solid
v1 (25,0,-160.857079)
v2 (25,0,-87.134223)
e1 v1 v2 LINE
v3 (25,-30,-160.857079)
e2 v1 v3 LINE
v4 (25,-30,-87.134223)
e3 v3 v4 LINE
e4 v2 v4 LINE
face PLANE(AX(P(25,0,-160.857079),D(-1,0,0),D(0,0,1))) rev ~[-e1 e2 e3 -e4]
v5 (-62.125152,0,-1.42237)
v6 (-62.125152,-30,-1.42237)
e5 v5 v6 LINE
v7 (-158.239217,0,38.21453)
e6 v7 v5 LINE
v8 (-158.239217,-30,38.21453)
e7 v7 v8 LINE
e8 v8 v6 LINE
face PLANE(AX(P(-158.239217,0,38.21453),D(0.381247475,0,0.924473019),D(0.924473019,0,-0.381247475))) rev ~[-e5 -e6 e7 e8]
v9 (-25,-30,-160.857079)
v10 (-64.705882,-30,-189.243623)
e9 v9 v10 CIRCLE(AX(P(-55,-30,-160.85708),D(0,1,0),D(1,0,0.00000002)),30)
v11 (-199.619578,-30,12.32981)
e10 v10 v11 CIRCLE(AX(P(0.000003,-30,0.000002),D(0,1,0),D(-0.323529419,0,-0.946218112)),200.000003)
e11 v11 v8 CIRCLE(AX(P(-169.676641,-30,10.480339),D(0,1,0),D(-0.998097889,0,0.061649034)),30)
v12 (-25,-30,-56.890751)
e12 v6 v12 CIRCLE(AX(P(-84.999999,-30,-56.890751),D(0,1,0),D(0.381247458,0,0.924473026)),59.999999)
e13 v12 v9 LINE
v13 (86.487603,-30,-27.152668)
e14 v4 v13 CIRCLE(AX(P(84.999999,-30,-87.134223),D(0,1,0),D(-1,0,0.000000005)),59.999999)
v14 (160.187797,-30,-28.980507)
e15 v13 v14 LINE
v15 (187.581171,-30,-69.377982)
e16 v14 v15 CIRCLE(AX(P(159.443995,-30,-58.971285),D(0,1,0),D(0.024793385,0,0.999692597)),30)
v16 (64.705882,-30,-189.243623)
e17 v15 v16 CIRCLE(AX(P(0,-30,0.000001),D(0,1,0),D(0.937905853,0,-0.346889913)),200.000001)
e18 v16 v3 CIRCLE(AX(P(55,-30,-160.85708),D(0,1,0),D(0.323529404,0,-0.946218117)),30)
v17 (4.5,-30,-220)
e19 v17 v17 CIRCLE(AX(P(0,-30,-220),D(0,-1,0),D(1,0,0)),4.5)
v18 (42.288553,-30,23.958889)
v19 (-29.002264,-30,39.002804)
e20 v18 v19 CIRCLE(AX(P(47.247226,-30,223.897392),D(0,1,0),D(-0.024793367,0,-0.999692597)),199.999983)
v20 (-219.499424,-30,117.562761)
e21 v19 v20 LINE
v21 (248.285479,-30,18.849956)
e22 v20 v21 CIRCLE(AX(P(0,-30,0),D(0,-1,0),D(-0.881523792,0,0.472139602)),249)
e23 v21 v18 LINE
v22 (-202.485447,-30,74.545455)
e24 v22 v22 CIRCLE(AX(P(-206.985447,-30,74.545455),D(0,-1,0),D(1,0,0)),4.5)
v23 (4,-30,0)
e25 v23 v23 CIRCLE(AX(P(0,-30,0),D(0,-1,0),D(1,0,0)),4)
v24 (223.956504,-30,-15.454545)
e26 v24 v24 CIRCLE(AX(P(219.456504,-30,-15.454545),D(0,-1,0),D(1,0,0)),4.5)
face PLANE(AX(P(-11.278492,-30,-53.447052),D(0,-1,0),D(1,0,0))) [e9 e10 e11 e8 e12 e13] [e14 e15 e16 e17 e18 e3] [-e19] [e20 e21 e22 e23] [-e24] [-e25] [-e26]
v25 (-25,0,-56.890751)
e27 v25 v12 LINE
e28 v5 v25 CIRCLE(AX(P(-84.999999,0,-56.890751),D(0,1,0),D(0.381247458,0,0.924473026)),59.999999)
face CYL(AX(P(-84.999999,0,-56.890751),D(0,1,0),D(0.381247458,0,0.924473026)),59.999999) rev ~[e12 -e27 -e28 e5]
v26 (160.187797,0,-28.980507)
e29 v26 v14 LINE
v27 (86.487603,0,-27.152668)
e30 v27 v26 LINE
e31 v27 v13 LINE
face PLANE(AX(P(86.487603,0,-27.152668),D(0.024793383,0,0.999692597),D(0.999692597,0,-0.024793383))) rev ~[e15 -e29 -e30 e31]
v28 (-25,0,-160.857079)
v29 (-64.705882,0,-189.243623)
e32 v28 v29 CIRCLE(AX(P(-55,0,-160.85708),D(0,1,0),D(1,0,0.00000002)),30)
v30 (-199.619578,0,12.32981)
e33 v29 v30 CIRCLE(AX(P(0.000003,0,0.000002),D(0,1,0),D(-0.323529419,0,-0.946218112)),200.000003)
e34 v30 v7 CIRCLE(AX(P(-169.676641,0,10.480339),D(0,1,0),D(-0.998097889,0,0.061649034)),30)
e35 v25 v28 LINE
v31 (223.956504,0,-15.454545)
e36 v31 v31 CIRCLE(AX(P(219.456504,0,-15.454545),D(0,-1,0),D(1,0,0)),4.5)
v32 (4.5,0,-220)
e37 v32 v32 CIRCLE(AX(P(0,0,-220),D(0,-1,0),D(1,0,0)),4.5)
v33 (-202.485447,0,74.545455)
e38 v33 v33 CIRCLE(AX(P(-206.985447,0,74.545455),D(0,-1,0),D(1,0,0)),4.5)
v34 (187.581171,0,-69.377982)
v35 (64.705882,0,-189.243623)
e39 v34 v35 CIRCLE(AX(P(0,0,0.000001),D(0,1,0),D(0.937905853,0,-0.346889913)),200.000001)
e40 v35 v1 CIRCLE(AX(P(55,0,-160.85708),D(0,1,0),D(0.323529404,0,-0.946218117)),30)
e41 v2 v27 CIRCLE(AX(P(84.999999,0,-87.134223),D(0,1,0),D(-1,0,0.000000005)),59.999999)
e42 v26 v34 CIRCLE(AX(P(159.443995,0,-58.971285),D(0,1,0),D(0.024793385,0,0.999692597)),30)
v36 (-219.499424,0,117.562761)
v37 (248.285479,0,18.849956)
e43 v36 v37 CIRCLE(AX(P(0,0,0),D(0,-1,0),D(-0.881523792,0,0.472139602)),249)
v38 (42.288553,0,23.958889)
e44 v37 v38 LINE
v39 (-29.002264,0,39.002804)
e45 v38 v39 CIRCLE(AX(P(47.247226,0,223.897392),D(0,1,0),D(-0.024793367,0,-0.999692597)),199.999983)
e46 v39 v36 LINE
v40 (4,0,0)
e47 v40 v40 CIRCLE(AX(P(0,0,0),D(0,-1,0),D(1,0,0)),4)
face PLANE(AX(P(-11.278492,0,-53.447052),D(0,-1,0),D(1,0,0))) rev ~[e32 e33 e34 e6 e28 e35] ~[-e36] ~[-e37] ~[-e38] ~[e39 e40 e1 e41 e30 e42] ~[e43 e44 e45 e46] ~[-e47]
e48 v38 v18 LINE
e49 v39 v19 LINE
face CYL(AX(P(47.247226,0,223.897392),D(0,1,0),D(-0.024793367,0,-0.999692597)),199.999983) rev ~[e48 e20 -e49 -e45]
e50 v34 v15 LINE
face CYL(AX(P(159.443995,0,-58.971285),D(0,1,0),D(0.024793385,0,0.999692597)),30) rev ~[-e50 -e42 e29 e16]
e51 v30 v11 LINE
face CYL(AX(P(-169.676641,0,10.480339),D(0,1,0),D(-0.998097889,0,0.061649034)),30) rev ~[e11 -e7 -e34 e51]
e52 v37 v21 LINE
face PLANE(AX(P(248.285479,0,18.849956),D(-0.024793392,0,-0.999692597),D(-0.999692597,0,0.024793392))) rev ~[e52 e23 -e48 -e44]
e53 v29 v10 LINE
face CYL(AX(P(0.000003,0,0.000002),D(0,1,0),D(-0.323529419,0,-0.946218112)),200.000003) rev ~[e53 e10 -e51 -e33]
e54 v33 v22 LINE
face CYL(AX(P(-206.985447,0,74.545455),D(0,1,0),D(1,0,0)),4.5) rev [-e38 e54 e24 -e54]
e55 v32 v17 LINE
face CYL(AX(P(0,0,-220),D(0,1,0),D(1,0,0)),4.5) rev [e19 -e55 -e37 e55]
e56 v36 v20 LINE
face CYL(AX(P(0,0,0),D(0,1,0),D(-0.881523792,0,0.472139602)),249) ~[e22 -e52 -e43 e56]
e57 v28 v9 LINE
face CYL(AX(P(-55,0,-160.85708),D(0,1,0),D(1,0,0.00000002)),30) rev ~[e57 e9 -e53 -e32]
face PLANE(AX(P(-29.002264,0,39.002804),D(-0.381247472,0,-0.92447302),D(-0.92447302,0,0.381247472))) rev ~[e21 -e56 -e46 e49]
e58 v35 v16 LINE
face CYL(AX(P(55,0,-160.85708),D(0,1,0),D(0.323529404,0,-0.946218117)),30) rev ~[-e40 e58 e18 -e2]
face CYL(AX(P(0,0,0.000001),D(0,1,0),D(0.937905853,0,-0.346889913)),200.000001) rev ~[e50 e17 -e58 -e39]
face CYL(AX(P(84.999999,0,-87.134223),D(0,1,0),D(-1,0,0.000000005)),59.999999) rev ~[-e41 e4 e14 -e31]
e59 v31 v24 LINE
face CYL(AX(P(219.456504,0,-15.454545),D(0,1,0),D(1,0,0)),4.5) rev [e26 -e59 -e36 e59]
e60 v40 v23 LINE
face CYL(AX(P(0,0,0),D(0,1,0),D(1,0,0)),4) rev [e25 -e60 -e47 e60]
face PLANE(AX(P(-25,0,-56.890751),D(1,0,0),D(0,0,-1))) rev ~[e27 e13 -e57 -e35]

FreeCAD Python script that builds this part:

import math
import FreeCAD as App
import Part
import Sketcher
from FreeCAD import Vector

doc = App.newDocument("Part")
body = doc.addObject("PartDesign::Body", "Body")

sketch1 = body.newObject("Sketcher::SketchObject", "Sketch")
sketch1.AttachmentSupport = (doc.getObject("XZ_Plane"), [""])
sketch1.MapMode = "FlatFace"
sketch1.addGeometry([
    Part.LineSegment(Vector(-29, 39, 0), Vector(-219.5, 117.6, 0)),
    Part.ArcOfCircle(Part.Circle(Vector(0, 0, 0), Vector(0, 0, 1), 249), math.radians(152), math.radians(364)),
    Part.LineSegment(Vector(248.3, 18.8, 0), Vector(42.3, 24, 0)),
    Part.ArcOfCircle(Part.Circle(Vector(47.2, 223.9, 0), Vector(0, 0, 1), 200), math.radians(-112), math.radians(-91)),
    Part.Circle(Vector(0, -220, 0), Vector(0, 0, 1), 4.5),
    Part.ArcOfCircle(Part.Circle(Vector(-55, -160.9, 0), Vector(0, 0, 1), 30), math.radians(-109), math.radians(0)),
    Part.ArcOfCircle(Part.Circle(Vector(0, 0, 0), Vector(0, 0, 1), 200), math.radians(176), math.radians(251)),
    Part.ArcOfCircle(Part.Circle(Vector(-169.7, 10.5, 0), Vector(0, 0, 1), 30), math.radians(68), math.radians(176)),
    Part.LineSegment(Vector(-158.2, 38.2, 0), Vector(-62.1, -1.4, 0)),
    Part.ArcOfCircle(Part.Circle(Vector(-85, -56.9, 0), Vector(0, 0, 1), 60), math.radians(0), math.radians(68)),
    Part.LineSegment(Vector(-25, -56.9, 0), Vector(-25, -160.9, 0)),
    Part.ArcOfCircle(Part.Circle(Vector(55, -160.9, 0), Vector(0, 0, 1), 30), math.radians(180), math.radians(289)),
    Part.LineSegment(Vector(25, -160.9, 0), Vector(25, -87.1, 0)),
    Part.ArcOfCircle(Part.Circle(Vector(85, -87.1, 0), Vector(0, 0, 1), 60), math.radians(89), math.radians(180)),
    Part.LineSegment(Vector(86.5, -27.2, 0), Vector(160.2, -29, 0)),
    Part.ArcOfCircle(Part.Circle(Vector(159.4, -59, 0), Vector(0, 0, 1), 30), math.radians(-20), math.radians(89)),
    Part.ArcOfCircle(Part.Circle(Vector(0, 0, 0), Vector(0, 0, 1), 200), math.radians(-71), math.radians(-20)),
    Part.Circle(Vector(0, 0, 0), Vector(0, 0, 1), 4),
    Part.Circle(Vector(-207, 74.5, 0), Vector(0, 0, 1), 4.5),
    Part.Circle(Vector(219.5, -15.5, 0), Vector(0, 0, 1), 4.5),
], False)
sketch1.addConstraint([
    Sketcher.Constraint("Coincident", 0, 2, 1, 1),
    Sketcher.Constraint("Coincident", 1, 2, 2, 1),
    Sketcher.Constraint("Tangent", 2, 2, 3, 2),
    Sketcher.Constraint("Tangent", 3, 1, 0, 1),
    Sketcher.Constraint("Tangent", 5, 1, 6, 2),
    Sketcher.Constraint("Tangent", 6, 1, 7, 2),
    Sketcher.Constraint("Tangent", 7, 1, 8, 1),
    Sketcher.Constraint("Tangent", 8, 2, 9, 2),
    Sketcher.Constraint("Tangent", 9, 1, 10, 1),
    Sketcher.Constraint("Tangent", 10, 2, 5, 2),
    Sketcher.Constraint("Tangent", 11, 1, 12, 1),
    Sketcher.Constraint("Tangent", 12, 2, 13, 2),
    Sketcher.Constraint("Tangent", 13, 1, 14, 1),
    Sketcher.Constraint("Tangent", 14, 2, 15, 2),
    Sketcher.Constraint("Tangent", 15, 1, 16, 2),
    Sketcher.Constraint("Tangent", 16, 1, 11, 2),
    Sketcher.Constraint("Vertical", 10),
    Sketcher.Constraint("Vertical", 12),
    Sketcher.Constraint("Coincident", 1, 3, -1, 1),
    Sketcher.Constraint("Coincident", 6, 3, -1, 1),
    Sketcher.Constraint("Coincident", 16, 3, -1, 1),
    Sketcher.Constraint("Coincident", 17, 3, -1, 1),
    Sketcher.Constraint("Equal", 5, 7),
    Sketcher.Constraint("Equal", 7, 11),
    Sketcher.Constraint("Equal", 9, 13),
    Sketcher.Constraint("Equal", 11, 15),
    Sketcher.Constraint("Equal", 4, 18),
    Sketcher.Constraint("Equal", 18, 19),
    Sketcher.Constraint("Symmetric", 5, 3, 11, 3, -2),
    Sketcher.Constraint("PointOnObject", 4, 3, -2),
    Sketcher.Constraint("Parallel", 0, 8),
    Sketcher.Constraint("Parallel", 2, 14),
    Sketcher.Constraint("Equal", 0, 2),
    Sketcher.Constraint("Diameter", 4, 9.0),
    Sketcher.Constraint("Diameter", 17, 8.0),
    Sketcher.Constraint("Radius", 1, 249.0),
    Sketcher.Constraint("Radius", 5, 30.0),
    Sketcher.Constraint("Radius", 9, 59.999999),
    Sketcher.Constraint("Radius", 16, 200.000001),
    Sketcher.Constraint("DistanceY", 4, 3, -1, 1, 220.0),
    Sketcher.Constraint("DistanceX", 5, 3, -1, 1, 55.0),
    Sketcher.Constraint("Radius", 3, 199.999983),
    Sketcher.Constraint("DistanceY", 10, 2, 10, 1, 103.966328),
    Sketcher.Constraint("DistanceX", 6, 3, 19, 3, 219.456501),
    Sketcher.Constraint("DistanceY", 19, 3, 1, 2, 34.304501),
    Sketcher.Constraint("DistanceY", 6, 3, 3, 1, 39.002802),
    Sketcher.Constraint("DistanceY", 5, 1, 13, 3, 102.1094),
    Sketcher.Constraint("DistanceX", 6, 3, 13, 1, 86.4876),
    Sketcher.Constraint("Distance", 0, 206.06027),
    Sketcher.Constraint("DistanceX", 18, 3, 6, 1, 7.365869),
    Sketcher.Constraint("DistanceY", -1, 1, 18, 3, 74.545455),
])
pad1 = body.newObject("PartDesign::Pad", "Pad")
pad1.Profile = sketch1
pad1.Length = 30

doc.recompute()
